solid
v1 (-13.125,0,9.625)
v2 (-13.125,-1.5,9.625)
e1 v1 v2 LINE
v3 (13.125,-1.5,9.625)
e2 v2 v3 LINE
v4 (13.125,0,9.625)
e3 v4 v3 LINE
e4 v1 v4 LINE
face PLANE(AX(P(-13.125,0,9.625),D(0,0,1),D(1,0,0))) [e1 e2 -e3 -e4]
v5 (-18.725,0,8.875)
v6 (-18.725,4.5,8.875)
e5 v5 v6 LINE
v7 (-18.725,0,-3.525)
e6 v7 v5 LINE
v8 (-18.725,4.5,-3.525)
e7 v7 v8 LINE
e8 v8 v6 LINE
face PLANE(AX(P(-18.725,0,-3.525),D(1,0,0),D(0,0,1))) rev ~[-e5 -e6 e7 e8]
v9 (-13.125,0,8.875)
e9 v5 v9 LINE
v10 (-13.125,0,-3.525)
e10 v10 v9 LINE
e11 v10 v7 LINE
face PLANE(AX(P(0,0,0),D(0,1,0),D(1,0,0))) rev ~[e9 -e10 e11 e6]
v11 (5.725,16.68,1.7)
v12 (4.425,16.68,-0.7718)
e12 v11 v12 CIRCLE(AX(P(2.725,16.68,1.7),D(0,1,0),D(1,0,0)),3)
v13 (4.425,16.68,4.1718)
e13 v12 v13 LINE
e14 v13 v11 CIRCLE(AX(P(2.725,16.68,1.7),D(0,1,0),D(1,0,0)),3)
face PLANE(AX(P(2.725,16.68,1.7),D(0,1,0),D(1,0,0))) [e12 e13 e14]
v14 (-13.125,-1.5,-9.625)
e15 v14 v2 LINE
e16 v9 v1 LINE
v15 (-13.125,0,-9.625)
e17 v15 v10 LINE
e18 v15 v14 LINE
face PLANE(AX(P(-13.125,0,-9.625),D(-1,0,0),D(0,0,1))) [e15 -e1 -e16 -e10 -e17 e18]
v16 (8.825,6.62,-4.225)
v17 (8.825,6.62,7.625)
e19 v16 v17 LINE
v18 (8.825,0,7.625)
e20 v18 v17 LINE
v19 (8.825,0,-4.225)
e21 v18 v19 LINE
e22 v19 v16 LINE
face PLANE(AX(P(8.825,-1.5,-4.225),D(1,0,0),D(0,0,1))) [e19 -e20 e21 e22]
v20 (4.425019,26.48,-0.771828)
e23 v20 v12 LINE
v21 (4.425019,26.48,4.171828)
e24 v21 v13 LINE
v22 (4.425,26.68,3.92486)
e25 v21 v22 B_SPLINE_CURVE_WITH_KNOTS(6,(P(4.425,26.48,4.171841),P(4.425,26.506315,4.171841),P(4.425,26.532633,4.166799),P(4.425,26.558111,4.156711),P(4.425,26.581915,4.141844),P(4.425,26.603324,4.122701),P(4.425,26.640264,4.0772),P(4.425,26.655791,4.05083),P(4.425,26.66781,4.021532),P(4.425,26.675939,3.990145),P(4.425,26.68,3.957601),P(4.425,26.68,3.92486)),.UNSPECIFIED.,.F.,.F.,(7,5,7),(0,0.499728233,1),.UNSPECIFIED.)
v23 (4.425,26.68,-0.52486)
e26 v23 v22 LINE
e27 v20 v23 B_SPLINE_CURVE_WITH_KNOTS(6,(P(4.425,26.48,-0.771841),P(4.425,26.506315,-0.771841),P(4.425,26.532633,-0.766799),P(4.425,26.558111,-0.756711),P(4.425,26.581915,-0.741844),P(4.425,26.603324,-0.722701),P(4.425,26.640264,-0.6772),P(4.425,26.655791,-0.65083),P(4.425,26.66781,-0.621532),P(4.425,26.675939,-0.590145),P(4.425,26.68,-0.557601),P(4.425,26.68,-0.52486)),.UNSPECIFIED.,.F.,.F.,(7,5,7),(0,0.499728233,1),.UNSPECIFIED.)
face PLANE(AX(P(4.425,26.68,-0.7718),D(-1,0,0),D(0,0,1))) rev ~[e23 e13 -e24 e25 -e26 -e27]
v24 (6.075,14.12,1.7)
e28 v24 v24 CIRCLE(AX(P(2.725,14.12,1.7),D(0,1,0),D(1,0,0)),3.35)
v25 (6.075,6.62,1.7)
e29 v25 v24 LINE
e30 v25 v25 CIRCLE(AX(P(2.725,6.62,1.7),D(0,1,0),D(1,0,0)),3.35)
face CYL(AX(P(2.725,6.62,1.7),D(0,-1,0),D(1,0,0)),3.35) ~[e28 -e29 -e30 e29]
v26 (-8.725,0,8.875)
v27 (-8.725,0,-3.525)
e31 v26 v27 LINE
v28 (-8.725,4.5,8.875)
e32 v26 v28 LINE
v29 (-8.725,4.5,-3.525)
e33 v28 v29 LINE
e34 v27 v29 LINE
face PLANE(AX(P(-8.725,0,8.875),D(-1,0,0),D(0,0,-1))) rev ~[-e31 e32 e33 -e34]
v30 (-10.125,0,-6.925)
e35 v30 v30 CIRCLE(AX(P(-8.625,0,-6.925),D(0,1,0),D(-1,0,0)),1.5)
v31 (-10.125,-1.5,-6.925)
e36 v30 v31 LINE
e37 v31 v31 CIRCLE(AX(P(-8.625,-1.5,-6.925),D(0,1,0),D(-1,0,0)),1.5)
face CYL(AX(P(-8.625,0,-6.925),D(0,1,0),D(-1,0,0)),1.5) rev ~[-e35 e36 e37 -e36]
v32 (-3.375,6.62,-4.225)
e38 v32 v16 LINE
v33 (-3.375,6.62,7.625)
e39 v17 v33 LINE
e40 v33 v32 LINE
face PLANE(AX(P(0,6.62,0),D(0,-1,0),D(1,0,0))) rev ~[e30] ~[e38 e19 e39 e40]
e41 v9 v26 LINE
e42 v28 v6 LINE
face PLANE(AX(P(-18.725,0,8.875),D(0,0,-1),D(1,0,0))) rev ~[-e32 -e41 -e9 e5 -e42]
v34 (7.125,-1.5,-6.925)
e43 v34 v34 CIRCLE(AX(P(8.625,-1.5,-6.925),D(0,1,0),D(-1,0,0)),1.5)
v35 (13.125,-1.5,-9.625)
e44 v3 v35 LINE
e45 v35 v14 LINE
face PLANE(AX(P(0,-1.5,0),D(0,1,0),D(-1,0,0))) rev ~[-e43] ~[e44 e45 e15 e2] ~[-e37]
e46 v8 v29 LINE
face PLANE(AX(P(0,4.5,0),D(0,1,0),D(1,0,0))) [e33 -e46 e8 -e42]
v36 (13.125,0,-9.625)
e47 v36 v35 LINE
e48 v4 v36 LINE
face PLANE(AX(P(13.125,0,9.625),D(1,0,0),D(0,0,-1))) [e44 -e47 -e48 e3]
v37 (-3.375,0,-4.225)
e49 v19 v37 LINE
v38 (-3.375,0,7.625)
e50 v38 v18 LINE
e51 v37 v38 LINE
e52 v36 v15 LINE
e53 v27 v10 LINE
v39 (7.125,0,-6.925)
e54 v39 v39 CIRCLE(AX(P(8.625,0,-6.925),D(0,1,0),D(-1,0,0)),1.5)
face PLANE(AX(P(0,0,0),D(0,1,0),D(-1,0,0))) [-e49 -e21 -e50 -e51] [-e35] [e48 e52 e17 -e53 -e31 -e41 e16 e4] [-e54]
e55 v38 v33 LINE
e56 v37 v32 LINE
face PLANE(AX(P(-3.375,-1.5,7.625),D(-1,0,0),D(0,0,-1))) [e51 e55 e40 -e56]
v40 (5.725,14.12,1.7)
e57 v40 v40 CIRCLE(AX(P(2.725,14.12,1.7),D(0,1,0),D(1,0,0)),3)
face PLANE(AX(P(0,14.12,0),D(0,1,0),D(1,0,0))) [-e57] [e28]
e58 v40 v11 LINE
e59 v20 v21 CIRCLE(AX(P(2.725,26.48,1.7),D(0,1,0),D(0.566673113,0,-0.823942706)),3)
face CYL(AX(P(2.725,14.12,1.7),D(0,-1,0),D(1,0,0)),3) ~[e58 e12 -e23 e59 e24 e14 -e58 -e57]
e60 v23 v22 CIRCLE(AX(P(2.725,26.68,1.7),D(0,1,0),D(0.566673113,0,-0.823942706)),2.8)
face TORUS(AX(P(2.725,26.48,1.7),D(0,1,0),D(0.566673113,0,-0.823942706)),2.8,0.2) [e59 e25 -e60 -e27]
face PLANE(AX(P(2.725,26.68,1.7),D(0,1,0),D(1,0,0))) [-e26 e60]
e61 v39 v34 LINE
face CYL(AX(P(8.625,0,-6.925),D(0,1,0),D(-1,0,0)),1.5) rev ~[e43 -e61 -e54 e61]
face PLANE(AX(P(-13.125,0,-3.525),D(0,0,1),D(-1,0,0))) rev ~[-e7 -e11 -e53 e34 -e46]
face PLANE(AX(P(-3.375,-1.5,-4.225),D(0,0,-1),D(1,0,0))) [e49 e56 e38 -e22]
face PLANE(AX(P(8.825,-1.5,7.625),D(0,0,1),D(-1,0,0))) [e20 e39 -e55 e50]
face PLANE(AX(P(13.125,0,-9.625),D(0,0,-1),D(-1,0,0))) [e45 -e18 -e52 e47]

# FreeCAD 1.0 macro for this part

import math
import FreeCAD as App
import Part
import Sketcher
Q = App.Units.Quantity


def edges_at(feature, points):
    """Names of the edges that pass closest to the given points."""
    edges = feature.Shape.Edges
    near = lambda p: min(range(len(edges)), key=lambda i: edges[i].distToShape(Part.Vertex(*p))[0])
    return sorted({f"Edge{near(p) + 1}" for p in points})


def add_polygon(sketch, points):
    """Adds a closed chain of lines whose ends are joined by coincident constraints."""
    first, n = sketch.GeometryCount, len(points)
    for a, b in zip(points, points[1:] + points[:1]):
        sketch.addGeometry(Part.LineSegment(App.Vector(*a, 0), App.Vector(*b, 0)), False)
    for i in range(n):
        sketch.addConstraint(Sketcher.Constraint("Coincident", first + i, 2, first + (i + 1) % n, 1))

doc = App.newDocument("Part")
body = doc.addObject("PartDesign::Body", "Body")

# Sketch on XZ plane
sketch1 = body.newObject("Sketcher::SketchObject", "Sketch")
sketch1.AttachmentSupport = (doc.getObject("XZ_Plane"), [""])
sketch1.MapMode = "FlatFace"
add_polygon(sketch1, [(-13.125, -9.625), (-13.125, 9.625), (13.125, 9.625), (13.125, -9.625)])  # lines 0-3
sketch1.addGeometry(Part.Circle(App.Vector(8.625, -6.925, 0), App.Vector(0, 0, 1), 1.5), False)  # 4
sketch1.addGeometry(Part.Circle(App.Vector(-8.625, -6.925, 0), App.Vector(0, 0, 1), 1.5), False)  # 5
add_polygon(sketch1, [(8.825, 7.625), (-3.375, 7.625), (-3.375, -4.225), (8.825, -4.225)])  # lines 6-9
sketch1.addConstraint([
    Sketcher.Constraint("Vertical", 0),
    Sketcher.Constraint("Horizontal", 1),
    Sketcher.Constraint("Vertical", 2),
    Sketcher.Constraint("Horizontal", 3),
    Sketcher.Constraint("Horizontal", 6),
    Sketcher.Constraint("Vertical", 7),
    Sketcher.Constraint("Horizontal", 8),
    Sketcher.Constraint("Vertical", 9),
    Sketcher.Constraint("Equal", 4, 5),
    Sketcher.Constraint("Symmetric", 0, 2, 2, 2, -1, 1),
    Sketcher.Constraint("Symmetric", 4, 3, 5, 3, -2),
    Sketcher.Constraint("Diameter", 4, Q("3 mm")),
    Sketcher.Constraint("DistanceX", 6, 2, 6, 1, Q("12.2 mm")),
    Sketcher.Constraint("DistanceY", 6, 2, 0, 2, Q("2 mm")),
    Sketcher.Constraint("DistanceX", 1, 1, 1, 2, Q("26.25 mm")),
    Sketcher.Constraint("DistanceY", 0, 1, 0, 2, Q("19.25 mm")),
    Sketcher.Constraint("DistanceY", 7, 2, 7, 1, Q("11.85 mm")),
    Sketcher.Constraint("DistanceX", 0, 2, 5, 3, Q("4.5 mm")),
    Sketcher.Constraint("DistanceY", 2, 2, 4, 3, Q("2.7 mm")),
    Sketcher.Constraint("DistanceX", 8, 2, 2, 2, Q("4.3 mm")),
])
pad1 = body.newObject("PartDesign::Pad", "Pad")
pad1.Profile = sketch1
pad1.Length = 1.5

# Sketch on XZ plane
sketch2 = body.newObject("Sketcher::SketchObject", "Sketch001")
sketch2.AttachmentSupport = (doc.getObject("XZ_Plane"), [""])
sketch2.MapMode = "FlatFace"
sketch2.AttachmentOffset = App.Placement(App.Vector(0, 0, 1.5), App.Rotation())
add_polygon(sketch2, [(-3.375, -4.225), (8.825, -4.225), (8.825, 7.625), (-3.375, 7.625)])  # lines 0-3
sketch2.addConstraint([
    Sketcher.Constraint("Horizontal", 0),
    Sketcher.Constraint("Vertical", 1),
    Sketcher.Constraint("Horizontal", 2),
    Sketcher.Constraint("Vertical", 3),
    Sketcher.Constraint("DistanceX", 0, 1, 0, 2, Q("12.2 mm")),
    Sketcher.Constraint("DistanceY", 1, 1, 1, 2, Q("11.85 mm")),
    Sketcher.Constraint("DistanceX", -1, 1, 0, 2, Q("8.825 mm")),
    Sketcher.Constraint("DistanceY", 0, 2, -1, 1, Q("4.225 mm")),
])
pad2 = body.newObject("PartDesign::Pad", "Pad001")
pad2.Profile = sketch2
pad2.Length = 8.12
pad2.Reversed = True

# Sketch on XZ plane
sketch3 = body.newObject("Sketcher::SketchObject", "Sketch002")
sketch3.AttachmentSupport = (doc.getObject("XZ_Plane"), [""])
sketch3.MapMode = "FlatFace"
add_polygon(sketch3, [(-18.725, -3.525), (-18.725, 8.875), (-8.725, 8.875), (-8.725, -3.525)])  # lines 0-3
sketch3.addConstraint([
    Sketcher.Constraint("Vertical", 0),
    Sketcher.Constraint("Horizontal", 1),
    Sketcher.Constraint("Vertical", 2),
    Sketcher.Constraint("Horizontal", 3),
    Sketcher.Constraint("DistanceX", 1, 1, 1, 2, Q("10 mm")),
    Sketcher.Constraint("DistanceY", 0, 1, 0, 2, Q("12.4 mm")),
    Sketcher.Constraint("DistanceX", 0, 2, -1, 1, Q("18.725 mm")),
    Sketcher.Constraint("DistanceY", -1, 1, 0, 2, Q("8.875 mm")),
])
pad3 = body.newObject("PartDesign::Pad", "Pad002")
pad3.Profile = sketch3
pad3.Length = 4.5
pad3.Reversed = True

# Sketch on XZ plane
sketch4 = body.newObject("Sketcher::SketchObject", "Sketch003")
sketch4.AttachmentSupport = (doc.getObject("XZ_Plane"), [""])
sketch4.MapMode = "FlatFace"
sketch4.AttachmentOffset = App.Placement(App.Vector(0, 0, -6.62), App.Rotation())
sketch4.addGeometry(Part.Circle(App.Vector(2.725, 1.7, 0), App.Vector(0, 0, 1), 3.35), False)
sketch4.addConstraint([
    Sketcher.Constraint("Diameter", 0, Q("6.7 mm")),
    Sketcher.Constraint("DistanceY", -1, 1, 0, 3, Q("1.7 mm")),
    Sketcher.Constraint("DistanceX", -1, 1, 0, 3, Q("2.725 mm")),
])
pad4 = body.newObject("PartDesign::Pad", "Pad003")
pad4.Profile = sketch4
pad4.Length = 7.5
pad4.Reversed = True

# Sketch on XZ plane
sketch5 = body.newObject("Sketcher::SketchObject", "Sketch004")
sketch5.AttachmentSupport = (doc.getObject("XZ_Plane"), [""])
sketch5.MapMode = "FlatFace"
sketch5.AttachmentOffset = App.Placement(App.Vector(0, 0, -14.12), App.Rotation())
sketch5.addGeometry(Part.Circle(App.Vector(2.725, 1.7, 0), App.Vector(0, 0, 1), 3), False)
sketch5.addConstraint([
    Sketcher.Constraint("Diameter", 0, Q("6 mm")),
    Sketcher.Constraint("DistanceY", -1, 1, 0, 3, Q("1.7 mm")),
    Sketcher.Constraint("DistanceX", -1, 1, 0, 3, Q("2.725 mm")),
])
pad5 = body.newObject("PartDesign::Pad", "Pad004")
pad5.Profile = sketch5
pad5.Length = 12.56
pad5.Reversed = True

# Sketch on XZ plane
sketch6 = body.newObject("Sketcher::SketchObject", "Sketch005")
sketch6.AttachmentSupport = (doc.getObject("XZ_Plane"), [""])
sketch6.MapMode = "FlatFace"
sketch6.AttachmentOffset = App.Placement(App.Vector(0, 0, -26.68), App.Rotation())
sketch6.addGeometry([
    Part.ArcOfCircle(Part.Circle(App.Vector(2.725, 1.7, 0), App.Vector(0, 0, 1), 3), math.radians(-55.481444), math.radians(55.481444)),
    Part.LineSegment(App.Vector(4.425, 4.1718, 0), App.Vector(4.425, -0.7718, 0)),
], False)
sketch6.addConstraint([
    Sketcher.Constraint("Coincident", 0, 1, 1, 2),
    Sketcher.Constraint("Coincident", 1, 1, 0, 2),
    Sketcher.Constraint("Vertical", 1),
    Sketcher.Constraint("Radius", 0, Q("3 mm")),
    Sketcher.Constraint("DistanceY", -1, 1, 0, 3, Q("1.7 mm")),
    Sketcher.Constraint("DistanceX", 0, 3, 0, 1, Q("1.7 mm")),
    Sketcher.Constraint("DistanceX", -1, 1, 0, 3, Q("2.725 mm")),
])
pocket1 = body.newObject("PartDesign::Pocket", "Pocket")
pocket1.Profile = sketch6
pocket1.Length = 10
pocket1.Reversed = True
doc.recompute()

fillet = body.newObject("PartDesign::Fillet", "Fillet")
fillet.Base = (pocket1, edges_at(pocket1, [(-0.275, 26.68, 1.7)]))
fillet.Radius = 0.2

doc.recompute()
